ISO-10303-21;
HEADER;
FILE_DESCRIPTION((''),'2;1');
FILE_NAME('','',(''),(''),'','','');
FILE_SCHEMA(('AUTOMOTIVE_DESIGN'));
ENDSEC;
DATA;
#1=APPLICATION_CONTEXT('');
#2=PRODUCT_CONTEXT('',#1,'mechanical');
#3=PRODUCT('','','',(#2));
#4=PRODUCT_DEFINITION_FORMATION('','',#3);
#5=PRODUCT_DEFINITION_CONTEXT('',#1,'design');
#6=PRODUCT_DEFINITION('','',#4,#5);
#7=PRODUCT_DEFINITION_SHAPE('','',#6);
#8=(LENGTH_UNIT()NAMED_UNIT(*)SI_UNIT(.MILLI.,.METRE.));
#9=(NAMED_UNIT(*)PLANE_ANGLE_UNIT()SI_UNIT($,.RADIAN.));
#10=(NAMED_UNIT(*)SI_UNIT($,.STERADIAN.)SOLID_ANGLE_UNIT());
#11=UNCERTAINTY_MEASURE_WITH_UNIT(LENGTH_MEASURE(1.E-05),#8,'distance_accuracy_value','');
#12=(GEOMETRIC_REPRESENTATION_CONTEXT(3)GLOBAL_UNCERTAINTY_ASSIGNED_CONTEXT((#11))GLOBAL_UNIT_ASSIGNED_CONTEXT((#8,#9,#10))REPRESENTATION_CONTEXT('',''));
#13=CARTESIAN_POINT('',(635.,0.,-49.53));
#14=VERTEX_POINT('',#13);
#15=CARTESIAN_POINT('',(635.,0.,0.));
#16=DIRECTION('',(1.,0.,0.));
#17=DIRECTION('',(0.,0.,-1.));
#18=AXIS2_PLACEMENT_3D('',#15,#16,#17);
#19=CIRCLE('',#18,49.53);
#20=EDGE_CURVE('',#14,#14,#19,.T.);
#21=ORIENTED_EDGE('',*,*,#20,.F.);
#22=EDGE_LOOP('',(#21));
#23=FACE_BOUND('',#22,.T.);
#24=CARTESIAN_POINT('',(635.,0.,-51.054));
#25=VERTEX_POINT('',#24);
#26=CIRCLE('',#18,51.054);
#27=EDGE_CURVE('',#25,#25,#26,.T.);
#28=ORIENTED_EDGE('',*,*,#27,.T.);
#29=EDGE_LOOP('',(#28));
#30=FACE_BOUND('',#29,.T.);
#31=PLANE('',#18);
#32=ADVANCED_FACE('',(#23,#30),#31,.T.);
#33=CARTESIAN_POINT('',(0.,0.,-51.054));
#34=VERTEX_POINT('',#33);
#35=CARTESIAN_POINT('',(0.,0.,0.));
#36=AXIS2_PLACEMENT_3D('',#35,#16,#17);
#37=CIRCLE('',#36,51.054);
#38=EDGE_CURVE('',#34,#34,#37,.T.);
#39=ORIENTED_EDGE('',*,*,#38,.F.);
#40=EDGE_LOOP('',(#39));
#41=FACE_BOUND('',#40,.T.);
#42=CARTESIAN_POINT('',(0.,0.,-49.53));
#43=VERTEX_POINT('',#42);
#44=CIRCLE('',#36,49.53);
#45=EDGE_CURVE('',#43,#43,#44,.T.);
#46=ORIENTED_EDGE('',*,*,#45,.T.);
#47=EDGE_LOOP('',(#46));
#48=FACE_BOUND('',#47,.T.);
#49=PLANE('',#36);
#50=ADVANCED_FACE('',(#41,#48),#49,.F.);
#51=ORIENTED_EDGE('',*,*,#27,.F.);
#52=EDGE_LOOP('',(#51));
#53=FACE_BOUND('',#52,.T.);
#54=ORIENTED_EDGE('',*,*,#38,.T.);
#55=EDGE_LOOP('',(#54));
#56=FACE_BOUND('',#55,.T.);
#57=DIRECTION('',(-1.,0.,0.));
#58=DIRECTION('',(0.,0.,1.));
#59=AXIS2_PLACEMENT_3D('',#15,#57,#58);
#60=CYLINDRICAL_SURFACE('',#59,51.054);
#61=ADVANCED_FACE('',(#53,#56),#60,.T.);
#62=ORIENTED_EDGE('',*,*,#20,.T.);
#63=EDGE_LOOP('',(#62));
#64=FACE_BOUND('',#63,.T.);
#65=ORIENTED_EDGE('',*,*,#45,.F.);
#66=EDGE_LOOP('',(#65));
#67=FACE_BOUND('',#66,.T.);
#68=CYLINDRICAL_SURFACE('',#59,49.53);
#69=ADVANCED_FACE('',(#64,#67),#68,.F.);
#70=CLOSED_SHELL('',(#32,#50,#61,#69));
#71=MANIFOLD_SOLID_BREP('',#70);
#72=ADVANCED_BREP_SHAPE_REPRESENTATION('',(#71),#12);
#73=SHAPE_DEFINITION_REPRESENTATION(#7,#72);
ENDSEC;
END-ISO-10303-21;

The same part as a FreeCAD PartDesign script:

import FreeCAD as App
import Part
import Sketcher

V = App.Vector
Q = App.Units.Quantity

doc = App.newDocument("Part")
body = doc.addObject("PartDesign::Body", "Body")

sketch1 = body.newObject("Sketcher::SketchObject", "Sketch")
sketch1.AttachmentSupport = (doc.getObject("YZ_Plane"), [""])
sketch1.MapMode = "FlatFace"
sketch1.addGeometry(Part.Circle(V(0, 0, 0), V(0, 0, 1), 51), False)
sketch1.addGeometry(Part.Circle(V(0, 0, 0), V(0, 0, 1), 50), False)
sketch1.addConstraint(Sketcher.Constraint("Coincident", 0, 3, -1, 1))
sketch1.addConstraint(Sketcher.Constraint("Coincident", 1, 3, -1, 1))
sketch1.addConstraint(Sketcher.Constraint("Diameter", 1, Q("3.9 in")))
sketch1.addConstraint(Sketcher.Constraint("Diameter", 0, Q("4.02 in")))
pad1 = body.newObject("PartDesign::Pad", "Pad")
pad1.Profile = sketch1
pad1.Length = Q("25 in")

doc.recompute()
